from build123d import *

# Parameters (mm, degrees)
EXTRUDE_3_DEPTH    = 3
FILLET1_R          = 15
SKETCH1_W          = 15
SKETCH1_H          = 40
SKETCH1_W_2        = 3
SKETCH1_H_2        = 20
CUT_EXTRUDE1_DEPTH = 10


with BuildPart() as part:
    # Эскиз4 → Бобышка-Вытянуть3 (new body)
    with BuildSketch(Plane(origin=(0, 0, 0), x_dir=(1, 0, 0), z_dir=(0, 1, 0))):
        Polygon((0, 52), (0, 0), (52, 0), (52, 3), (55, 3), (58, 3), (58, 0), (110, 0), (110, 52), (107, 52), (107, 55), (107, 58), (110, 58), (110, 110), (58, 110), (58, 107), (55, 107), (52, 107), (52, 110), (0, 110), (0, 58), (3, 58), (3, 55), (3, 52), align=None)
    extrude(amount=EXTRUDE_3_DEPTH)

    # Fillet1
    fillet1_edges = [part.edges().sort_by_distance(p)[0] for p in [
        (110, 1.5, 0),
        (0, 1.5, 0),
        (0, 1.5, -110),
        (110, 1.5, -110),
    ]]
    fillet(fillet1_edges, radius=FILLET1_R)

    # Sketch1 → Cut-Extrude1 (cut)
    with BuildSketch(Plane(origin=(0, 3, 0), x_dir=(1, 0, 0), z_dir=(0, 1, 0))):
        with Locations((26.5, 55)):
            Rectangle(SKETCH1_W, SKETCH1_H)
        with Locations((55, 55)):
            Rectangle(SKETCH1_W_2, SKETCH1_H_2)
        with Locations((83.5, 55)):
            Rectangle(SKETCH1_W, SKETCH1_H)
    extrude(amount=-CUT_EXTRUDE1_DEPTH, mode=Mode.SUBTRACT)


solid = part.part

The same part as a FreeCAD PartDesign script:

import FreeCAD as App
import Part
import Sketcher

V = App.Vector


def edges_at(feature, points):
    """Names of the edges that pass closest to the given points."""
    edges = feature.Shape.Edges
    near = lambda p: min(range(len(edges)), key=lambda i: edges[i].distToShape(Part.Vertex(*p))[0])
    return sorted({f"Edge{near(p) + 1}" for p in points})


def add_polygon(sketch, points):
    """Adds a closed chain of lines whose ends are joined by coincident constraints."""
    first, n = sketch.GeometryCount, len(points)
    for a, b in zip(points, points[1:] + points[:1]):
        sketch.addGeometry(Part.LineSegment(App.Vector(*a, 0), App.Vector(*b, 0)), False)
    for i in range(n):
        sketch.addConstraint(Sketcher.Constraint("Coincident", first + i, 2, first + (i + 1) % n, 1))

doc = App.newDocument("Part")
body = doc.addObject("PartDesign::Body", "Body")

sketch1 = body.newObject("Sketcher::SketchObject", "Sketch")
sketch1.AttachmentSupport = (doc.getObject("XZ_Plane"), [""])
sketch1.MapMode = "FlatFace"
add_polygon(sketch1, [(0, -52), (0, 0), (52, 0), (52, -3), (58, -3), (58, 0), (110, 0), (110, -52), (107, -52), (107, -58), (110, -58), (110, -110), (58, -110), (58, -107), (52, -107), (52, -110), (0, -110), (0, -58), (3, -58), (3, -52)])
sketch1.addConstraint(Sketcher.Constraint("Vertical", 0))
sketch1.addConstraint(Sketcher.Constraint("Horizontal", 1))
sketch1.addConstraint(Sketcher.Constraint("Vertical", 2))
sketch1.addConstraint(Sketcher.Constraint("Horizontal", 3))
sketch1.addConstraint(Sketcher.Constraint("Vertical", 4))
sketch1.addConstraint(Sketcher.Constraint("Horizontal", 5))
sketch1.addConstraint(Sketcher.Constraint("Vertical", 6))
sketch1.addConstraint(Sketcher.Constraint("Horizontal", 7))
sketch1.addConstraint(Sketcher.Constraint("Vertical", 8))
sketch1.addConstraint(Sketcher.Constraint("Horizontal", 9))
sketch1.addConstraint(Sketcher.Constraint("Vertical", 10))
sketch1.addConstraint(Sketcher.Constraint("Horizontal", 11))
sketch1.addConstraint(Sketcher.Constraint("Vertical", 12))
sketch1.addConstraint(Sketcher.Constraint("Horizontal", 13))
sketch1.addConstraint(Sketcher.Constraint("Vertical", 14))
sketch1.addConstraint(Sketcher.Constraint("Horizontal", 15))
sketch1.addConstraint(Sketcher.Constraint("Vertical", 16))
sketch1.addConstraint(Sketcher.Constraint("Horizontal", 17))
sketch1.addConstraint(Sketcher.Constraint("Vertical", 18))
sketch1.addConstraint(Sketcher.Constraint("Horizontal", 19))
sketch1.addConstraint(Sketcher.Constraint("Coincident", 0, 2, -1, 1))
sketch1.addConstraint(Sketcher.Constraint("PointOnObject", 4, 2, -1))
sketch1.addConstraint(Sketcher.Constraint("PointOnObject", 15, 2, -2))
sketch1.addConstraint(Sketcher.Constraint("Horizontal", 11, 2, 14, 2))
sketch1.addConstraint(Sketcher.Constraint("Horizontal", 9, 2, 16, 2))
sketch1.addConstraint(Sketcher.Constraint("Horizontal", 7, 2, 18, 2))
sketch1.addConstraint(Sketcher.Constraint("Vertical", 6, 2, 9, 2))
sketch1.addConstraint(Sketcher.Constraint("Vertical", 4, 2, 11, 2))
sketch1.addConstraint(Sketcher.Constraint("Vertical", 2, 2, 13, 2))
sketch1.addConstraint(Sketcher.Constraint("Equal", 1, 5))
sketch1.addConstraint(Sketcher.Constraint("Equal", 9, 17))
sketch1.addConstraint(Sketcher.Constraint("Equal", 15, 0))
sketch1.addConstraint(Sketcher.Constraint("Equal", 19, 2))
sketch1.addConstraint(Sketcher.Constraint("Equal", 13, 8))
sketch1.addConstraint(Sketcher.Constraint("Equal", 6, 10))
sketch1.addConstraint(Sketcher.Constraint("Equal", 4, 12))
sketch1.addConstraint(Sketcher.Constraint("DistanceX", 1, 1, 1, 2, 52.0))
sketch1.addConstraint(Sketcher.Constraint("DistanceX", 3, 1, 3, 2, 6.0))
sketch1.addConstraint(Sketcher.Constraint("DistanceX", 7, 2, 7, 1, 3.0))
pad1 = body.newObject("PartDesign::Pad", "Pad")
pad1.Profile = sketch1
pad1.Length = 3
pad1.Reversed = True
doc.recompute()

fillet = body.newObject("PartDesign::Fillet", "Fillet")
fillet.Base = (pad1, edges_at(pad1, [
    (110, 1.5, 0),
    (0, 1.5, 0),
    (0, 1.5, -110),
    (110, 1.5, -110),
]))
fillet.Radius = 15

sketch2 = body.newObject("Sketcher::SketchObject", "Sketch001")
sketch2.AttachmentSupport = (doc.getObject("XZ_Plane"), [""])
sketch2.MapMode = "FlatFace"
sketch2.AttachmentOffset = App.Placement(V(0, 0, -3), App.Rotation())
add_polygon(sketch2, [(19, -75), (19, -35), (34, -35), (34, -75)])
add_polygon(sketch2, [(53.5, -65), (53.5, -45), (56.5, -45), (56.5, -65)])
add_polygon(sketch2, [(76, -75), (76, -35), (91, -35), (91, -75)])
sketch2.addConstraint(Sketcher.Constraint("Vertical", 0))
sketch2.addConstraint(Sketcher.Constraint("Horizontal", 1))
sketch2.addConstraint(Sketcher.Constraint("Vertical", 2))
sketch2.addConstraint(Sketcher.Constraint("Horizontal", 3))
sketch2.addConstraint(Sketcher.Constraint("Vertical", 4))
sketch2.addConstraint(Sketcher.Constraint("Horizontal", 5))
sketch2.addConstraint(Sketcher.Constraint("Vertical", 6))
sketch2.addConstraint(Sketcher.Constraint("Horizontal", 7))
sketch2.addConstraint(Sketcher.Constraint("Vertical", 8))
sketch2.addConstraint(Sketcher.Constraint("Horizontal", 9))
sketch2.addConstraint(Sketcher.Constraint("Vertical", 10))
sketch2.addConstraint(Sketcher.Constraint("Horizontal", 11))
sketch2.addConstraint(Sketcher.Constraint("Horizontal", 1, 2, 8, 2))
sketch2.addConstraint(Sketcher.Constraint("Horizontal", 3, 2, 10, 2))
sketch2.addConstraint(Sketcher.Constraint("Equal", 3, 9))
sketch2.addConstraint(Sketcher.Constraint("DistanceX", 1, 1, 1, 2, 15.0))
sketch2.addConstraint(Sketcher.Constraint("DistanceX", 5, 1, 5, 2, 3.0))
sketch2.addConstraint(Sketcher.Constraint("DistanceY", 0, 1, 0, 2, 40.0))
sketch2.addConstraint(Sketcher.Constraint("DistanceY", 4, 1, 4, 2, 20.0))
sketch2.addConstraint(Sketcher.Constraint("DistanceX", -1, 1, 0, 2, 19.0))
sketch2.addConstraint(Sketcher.Constraint("DistanceY", 0, 2, -1, 1, 35.0))
sketch2.addConstraint(Sketcher.Constraint("DistanceY", 4, 2, -1, 1, 45.0))
sketch2.addConstraint(Sketcher.Constraint("DistanceX", -1, 1, 8, 2, 76.0))
sketch2.addConstraint(Sketcher.Constraint("DistanceX", -1, 1, 4, 2, 53.5))
pocket1 = body.newObject("PartDesign::Pocket", "Pocket")
pocket1.Profile = sketch2
pocket1.Length = 10
pocket1.Reversed = True

doc.recompute()
